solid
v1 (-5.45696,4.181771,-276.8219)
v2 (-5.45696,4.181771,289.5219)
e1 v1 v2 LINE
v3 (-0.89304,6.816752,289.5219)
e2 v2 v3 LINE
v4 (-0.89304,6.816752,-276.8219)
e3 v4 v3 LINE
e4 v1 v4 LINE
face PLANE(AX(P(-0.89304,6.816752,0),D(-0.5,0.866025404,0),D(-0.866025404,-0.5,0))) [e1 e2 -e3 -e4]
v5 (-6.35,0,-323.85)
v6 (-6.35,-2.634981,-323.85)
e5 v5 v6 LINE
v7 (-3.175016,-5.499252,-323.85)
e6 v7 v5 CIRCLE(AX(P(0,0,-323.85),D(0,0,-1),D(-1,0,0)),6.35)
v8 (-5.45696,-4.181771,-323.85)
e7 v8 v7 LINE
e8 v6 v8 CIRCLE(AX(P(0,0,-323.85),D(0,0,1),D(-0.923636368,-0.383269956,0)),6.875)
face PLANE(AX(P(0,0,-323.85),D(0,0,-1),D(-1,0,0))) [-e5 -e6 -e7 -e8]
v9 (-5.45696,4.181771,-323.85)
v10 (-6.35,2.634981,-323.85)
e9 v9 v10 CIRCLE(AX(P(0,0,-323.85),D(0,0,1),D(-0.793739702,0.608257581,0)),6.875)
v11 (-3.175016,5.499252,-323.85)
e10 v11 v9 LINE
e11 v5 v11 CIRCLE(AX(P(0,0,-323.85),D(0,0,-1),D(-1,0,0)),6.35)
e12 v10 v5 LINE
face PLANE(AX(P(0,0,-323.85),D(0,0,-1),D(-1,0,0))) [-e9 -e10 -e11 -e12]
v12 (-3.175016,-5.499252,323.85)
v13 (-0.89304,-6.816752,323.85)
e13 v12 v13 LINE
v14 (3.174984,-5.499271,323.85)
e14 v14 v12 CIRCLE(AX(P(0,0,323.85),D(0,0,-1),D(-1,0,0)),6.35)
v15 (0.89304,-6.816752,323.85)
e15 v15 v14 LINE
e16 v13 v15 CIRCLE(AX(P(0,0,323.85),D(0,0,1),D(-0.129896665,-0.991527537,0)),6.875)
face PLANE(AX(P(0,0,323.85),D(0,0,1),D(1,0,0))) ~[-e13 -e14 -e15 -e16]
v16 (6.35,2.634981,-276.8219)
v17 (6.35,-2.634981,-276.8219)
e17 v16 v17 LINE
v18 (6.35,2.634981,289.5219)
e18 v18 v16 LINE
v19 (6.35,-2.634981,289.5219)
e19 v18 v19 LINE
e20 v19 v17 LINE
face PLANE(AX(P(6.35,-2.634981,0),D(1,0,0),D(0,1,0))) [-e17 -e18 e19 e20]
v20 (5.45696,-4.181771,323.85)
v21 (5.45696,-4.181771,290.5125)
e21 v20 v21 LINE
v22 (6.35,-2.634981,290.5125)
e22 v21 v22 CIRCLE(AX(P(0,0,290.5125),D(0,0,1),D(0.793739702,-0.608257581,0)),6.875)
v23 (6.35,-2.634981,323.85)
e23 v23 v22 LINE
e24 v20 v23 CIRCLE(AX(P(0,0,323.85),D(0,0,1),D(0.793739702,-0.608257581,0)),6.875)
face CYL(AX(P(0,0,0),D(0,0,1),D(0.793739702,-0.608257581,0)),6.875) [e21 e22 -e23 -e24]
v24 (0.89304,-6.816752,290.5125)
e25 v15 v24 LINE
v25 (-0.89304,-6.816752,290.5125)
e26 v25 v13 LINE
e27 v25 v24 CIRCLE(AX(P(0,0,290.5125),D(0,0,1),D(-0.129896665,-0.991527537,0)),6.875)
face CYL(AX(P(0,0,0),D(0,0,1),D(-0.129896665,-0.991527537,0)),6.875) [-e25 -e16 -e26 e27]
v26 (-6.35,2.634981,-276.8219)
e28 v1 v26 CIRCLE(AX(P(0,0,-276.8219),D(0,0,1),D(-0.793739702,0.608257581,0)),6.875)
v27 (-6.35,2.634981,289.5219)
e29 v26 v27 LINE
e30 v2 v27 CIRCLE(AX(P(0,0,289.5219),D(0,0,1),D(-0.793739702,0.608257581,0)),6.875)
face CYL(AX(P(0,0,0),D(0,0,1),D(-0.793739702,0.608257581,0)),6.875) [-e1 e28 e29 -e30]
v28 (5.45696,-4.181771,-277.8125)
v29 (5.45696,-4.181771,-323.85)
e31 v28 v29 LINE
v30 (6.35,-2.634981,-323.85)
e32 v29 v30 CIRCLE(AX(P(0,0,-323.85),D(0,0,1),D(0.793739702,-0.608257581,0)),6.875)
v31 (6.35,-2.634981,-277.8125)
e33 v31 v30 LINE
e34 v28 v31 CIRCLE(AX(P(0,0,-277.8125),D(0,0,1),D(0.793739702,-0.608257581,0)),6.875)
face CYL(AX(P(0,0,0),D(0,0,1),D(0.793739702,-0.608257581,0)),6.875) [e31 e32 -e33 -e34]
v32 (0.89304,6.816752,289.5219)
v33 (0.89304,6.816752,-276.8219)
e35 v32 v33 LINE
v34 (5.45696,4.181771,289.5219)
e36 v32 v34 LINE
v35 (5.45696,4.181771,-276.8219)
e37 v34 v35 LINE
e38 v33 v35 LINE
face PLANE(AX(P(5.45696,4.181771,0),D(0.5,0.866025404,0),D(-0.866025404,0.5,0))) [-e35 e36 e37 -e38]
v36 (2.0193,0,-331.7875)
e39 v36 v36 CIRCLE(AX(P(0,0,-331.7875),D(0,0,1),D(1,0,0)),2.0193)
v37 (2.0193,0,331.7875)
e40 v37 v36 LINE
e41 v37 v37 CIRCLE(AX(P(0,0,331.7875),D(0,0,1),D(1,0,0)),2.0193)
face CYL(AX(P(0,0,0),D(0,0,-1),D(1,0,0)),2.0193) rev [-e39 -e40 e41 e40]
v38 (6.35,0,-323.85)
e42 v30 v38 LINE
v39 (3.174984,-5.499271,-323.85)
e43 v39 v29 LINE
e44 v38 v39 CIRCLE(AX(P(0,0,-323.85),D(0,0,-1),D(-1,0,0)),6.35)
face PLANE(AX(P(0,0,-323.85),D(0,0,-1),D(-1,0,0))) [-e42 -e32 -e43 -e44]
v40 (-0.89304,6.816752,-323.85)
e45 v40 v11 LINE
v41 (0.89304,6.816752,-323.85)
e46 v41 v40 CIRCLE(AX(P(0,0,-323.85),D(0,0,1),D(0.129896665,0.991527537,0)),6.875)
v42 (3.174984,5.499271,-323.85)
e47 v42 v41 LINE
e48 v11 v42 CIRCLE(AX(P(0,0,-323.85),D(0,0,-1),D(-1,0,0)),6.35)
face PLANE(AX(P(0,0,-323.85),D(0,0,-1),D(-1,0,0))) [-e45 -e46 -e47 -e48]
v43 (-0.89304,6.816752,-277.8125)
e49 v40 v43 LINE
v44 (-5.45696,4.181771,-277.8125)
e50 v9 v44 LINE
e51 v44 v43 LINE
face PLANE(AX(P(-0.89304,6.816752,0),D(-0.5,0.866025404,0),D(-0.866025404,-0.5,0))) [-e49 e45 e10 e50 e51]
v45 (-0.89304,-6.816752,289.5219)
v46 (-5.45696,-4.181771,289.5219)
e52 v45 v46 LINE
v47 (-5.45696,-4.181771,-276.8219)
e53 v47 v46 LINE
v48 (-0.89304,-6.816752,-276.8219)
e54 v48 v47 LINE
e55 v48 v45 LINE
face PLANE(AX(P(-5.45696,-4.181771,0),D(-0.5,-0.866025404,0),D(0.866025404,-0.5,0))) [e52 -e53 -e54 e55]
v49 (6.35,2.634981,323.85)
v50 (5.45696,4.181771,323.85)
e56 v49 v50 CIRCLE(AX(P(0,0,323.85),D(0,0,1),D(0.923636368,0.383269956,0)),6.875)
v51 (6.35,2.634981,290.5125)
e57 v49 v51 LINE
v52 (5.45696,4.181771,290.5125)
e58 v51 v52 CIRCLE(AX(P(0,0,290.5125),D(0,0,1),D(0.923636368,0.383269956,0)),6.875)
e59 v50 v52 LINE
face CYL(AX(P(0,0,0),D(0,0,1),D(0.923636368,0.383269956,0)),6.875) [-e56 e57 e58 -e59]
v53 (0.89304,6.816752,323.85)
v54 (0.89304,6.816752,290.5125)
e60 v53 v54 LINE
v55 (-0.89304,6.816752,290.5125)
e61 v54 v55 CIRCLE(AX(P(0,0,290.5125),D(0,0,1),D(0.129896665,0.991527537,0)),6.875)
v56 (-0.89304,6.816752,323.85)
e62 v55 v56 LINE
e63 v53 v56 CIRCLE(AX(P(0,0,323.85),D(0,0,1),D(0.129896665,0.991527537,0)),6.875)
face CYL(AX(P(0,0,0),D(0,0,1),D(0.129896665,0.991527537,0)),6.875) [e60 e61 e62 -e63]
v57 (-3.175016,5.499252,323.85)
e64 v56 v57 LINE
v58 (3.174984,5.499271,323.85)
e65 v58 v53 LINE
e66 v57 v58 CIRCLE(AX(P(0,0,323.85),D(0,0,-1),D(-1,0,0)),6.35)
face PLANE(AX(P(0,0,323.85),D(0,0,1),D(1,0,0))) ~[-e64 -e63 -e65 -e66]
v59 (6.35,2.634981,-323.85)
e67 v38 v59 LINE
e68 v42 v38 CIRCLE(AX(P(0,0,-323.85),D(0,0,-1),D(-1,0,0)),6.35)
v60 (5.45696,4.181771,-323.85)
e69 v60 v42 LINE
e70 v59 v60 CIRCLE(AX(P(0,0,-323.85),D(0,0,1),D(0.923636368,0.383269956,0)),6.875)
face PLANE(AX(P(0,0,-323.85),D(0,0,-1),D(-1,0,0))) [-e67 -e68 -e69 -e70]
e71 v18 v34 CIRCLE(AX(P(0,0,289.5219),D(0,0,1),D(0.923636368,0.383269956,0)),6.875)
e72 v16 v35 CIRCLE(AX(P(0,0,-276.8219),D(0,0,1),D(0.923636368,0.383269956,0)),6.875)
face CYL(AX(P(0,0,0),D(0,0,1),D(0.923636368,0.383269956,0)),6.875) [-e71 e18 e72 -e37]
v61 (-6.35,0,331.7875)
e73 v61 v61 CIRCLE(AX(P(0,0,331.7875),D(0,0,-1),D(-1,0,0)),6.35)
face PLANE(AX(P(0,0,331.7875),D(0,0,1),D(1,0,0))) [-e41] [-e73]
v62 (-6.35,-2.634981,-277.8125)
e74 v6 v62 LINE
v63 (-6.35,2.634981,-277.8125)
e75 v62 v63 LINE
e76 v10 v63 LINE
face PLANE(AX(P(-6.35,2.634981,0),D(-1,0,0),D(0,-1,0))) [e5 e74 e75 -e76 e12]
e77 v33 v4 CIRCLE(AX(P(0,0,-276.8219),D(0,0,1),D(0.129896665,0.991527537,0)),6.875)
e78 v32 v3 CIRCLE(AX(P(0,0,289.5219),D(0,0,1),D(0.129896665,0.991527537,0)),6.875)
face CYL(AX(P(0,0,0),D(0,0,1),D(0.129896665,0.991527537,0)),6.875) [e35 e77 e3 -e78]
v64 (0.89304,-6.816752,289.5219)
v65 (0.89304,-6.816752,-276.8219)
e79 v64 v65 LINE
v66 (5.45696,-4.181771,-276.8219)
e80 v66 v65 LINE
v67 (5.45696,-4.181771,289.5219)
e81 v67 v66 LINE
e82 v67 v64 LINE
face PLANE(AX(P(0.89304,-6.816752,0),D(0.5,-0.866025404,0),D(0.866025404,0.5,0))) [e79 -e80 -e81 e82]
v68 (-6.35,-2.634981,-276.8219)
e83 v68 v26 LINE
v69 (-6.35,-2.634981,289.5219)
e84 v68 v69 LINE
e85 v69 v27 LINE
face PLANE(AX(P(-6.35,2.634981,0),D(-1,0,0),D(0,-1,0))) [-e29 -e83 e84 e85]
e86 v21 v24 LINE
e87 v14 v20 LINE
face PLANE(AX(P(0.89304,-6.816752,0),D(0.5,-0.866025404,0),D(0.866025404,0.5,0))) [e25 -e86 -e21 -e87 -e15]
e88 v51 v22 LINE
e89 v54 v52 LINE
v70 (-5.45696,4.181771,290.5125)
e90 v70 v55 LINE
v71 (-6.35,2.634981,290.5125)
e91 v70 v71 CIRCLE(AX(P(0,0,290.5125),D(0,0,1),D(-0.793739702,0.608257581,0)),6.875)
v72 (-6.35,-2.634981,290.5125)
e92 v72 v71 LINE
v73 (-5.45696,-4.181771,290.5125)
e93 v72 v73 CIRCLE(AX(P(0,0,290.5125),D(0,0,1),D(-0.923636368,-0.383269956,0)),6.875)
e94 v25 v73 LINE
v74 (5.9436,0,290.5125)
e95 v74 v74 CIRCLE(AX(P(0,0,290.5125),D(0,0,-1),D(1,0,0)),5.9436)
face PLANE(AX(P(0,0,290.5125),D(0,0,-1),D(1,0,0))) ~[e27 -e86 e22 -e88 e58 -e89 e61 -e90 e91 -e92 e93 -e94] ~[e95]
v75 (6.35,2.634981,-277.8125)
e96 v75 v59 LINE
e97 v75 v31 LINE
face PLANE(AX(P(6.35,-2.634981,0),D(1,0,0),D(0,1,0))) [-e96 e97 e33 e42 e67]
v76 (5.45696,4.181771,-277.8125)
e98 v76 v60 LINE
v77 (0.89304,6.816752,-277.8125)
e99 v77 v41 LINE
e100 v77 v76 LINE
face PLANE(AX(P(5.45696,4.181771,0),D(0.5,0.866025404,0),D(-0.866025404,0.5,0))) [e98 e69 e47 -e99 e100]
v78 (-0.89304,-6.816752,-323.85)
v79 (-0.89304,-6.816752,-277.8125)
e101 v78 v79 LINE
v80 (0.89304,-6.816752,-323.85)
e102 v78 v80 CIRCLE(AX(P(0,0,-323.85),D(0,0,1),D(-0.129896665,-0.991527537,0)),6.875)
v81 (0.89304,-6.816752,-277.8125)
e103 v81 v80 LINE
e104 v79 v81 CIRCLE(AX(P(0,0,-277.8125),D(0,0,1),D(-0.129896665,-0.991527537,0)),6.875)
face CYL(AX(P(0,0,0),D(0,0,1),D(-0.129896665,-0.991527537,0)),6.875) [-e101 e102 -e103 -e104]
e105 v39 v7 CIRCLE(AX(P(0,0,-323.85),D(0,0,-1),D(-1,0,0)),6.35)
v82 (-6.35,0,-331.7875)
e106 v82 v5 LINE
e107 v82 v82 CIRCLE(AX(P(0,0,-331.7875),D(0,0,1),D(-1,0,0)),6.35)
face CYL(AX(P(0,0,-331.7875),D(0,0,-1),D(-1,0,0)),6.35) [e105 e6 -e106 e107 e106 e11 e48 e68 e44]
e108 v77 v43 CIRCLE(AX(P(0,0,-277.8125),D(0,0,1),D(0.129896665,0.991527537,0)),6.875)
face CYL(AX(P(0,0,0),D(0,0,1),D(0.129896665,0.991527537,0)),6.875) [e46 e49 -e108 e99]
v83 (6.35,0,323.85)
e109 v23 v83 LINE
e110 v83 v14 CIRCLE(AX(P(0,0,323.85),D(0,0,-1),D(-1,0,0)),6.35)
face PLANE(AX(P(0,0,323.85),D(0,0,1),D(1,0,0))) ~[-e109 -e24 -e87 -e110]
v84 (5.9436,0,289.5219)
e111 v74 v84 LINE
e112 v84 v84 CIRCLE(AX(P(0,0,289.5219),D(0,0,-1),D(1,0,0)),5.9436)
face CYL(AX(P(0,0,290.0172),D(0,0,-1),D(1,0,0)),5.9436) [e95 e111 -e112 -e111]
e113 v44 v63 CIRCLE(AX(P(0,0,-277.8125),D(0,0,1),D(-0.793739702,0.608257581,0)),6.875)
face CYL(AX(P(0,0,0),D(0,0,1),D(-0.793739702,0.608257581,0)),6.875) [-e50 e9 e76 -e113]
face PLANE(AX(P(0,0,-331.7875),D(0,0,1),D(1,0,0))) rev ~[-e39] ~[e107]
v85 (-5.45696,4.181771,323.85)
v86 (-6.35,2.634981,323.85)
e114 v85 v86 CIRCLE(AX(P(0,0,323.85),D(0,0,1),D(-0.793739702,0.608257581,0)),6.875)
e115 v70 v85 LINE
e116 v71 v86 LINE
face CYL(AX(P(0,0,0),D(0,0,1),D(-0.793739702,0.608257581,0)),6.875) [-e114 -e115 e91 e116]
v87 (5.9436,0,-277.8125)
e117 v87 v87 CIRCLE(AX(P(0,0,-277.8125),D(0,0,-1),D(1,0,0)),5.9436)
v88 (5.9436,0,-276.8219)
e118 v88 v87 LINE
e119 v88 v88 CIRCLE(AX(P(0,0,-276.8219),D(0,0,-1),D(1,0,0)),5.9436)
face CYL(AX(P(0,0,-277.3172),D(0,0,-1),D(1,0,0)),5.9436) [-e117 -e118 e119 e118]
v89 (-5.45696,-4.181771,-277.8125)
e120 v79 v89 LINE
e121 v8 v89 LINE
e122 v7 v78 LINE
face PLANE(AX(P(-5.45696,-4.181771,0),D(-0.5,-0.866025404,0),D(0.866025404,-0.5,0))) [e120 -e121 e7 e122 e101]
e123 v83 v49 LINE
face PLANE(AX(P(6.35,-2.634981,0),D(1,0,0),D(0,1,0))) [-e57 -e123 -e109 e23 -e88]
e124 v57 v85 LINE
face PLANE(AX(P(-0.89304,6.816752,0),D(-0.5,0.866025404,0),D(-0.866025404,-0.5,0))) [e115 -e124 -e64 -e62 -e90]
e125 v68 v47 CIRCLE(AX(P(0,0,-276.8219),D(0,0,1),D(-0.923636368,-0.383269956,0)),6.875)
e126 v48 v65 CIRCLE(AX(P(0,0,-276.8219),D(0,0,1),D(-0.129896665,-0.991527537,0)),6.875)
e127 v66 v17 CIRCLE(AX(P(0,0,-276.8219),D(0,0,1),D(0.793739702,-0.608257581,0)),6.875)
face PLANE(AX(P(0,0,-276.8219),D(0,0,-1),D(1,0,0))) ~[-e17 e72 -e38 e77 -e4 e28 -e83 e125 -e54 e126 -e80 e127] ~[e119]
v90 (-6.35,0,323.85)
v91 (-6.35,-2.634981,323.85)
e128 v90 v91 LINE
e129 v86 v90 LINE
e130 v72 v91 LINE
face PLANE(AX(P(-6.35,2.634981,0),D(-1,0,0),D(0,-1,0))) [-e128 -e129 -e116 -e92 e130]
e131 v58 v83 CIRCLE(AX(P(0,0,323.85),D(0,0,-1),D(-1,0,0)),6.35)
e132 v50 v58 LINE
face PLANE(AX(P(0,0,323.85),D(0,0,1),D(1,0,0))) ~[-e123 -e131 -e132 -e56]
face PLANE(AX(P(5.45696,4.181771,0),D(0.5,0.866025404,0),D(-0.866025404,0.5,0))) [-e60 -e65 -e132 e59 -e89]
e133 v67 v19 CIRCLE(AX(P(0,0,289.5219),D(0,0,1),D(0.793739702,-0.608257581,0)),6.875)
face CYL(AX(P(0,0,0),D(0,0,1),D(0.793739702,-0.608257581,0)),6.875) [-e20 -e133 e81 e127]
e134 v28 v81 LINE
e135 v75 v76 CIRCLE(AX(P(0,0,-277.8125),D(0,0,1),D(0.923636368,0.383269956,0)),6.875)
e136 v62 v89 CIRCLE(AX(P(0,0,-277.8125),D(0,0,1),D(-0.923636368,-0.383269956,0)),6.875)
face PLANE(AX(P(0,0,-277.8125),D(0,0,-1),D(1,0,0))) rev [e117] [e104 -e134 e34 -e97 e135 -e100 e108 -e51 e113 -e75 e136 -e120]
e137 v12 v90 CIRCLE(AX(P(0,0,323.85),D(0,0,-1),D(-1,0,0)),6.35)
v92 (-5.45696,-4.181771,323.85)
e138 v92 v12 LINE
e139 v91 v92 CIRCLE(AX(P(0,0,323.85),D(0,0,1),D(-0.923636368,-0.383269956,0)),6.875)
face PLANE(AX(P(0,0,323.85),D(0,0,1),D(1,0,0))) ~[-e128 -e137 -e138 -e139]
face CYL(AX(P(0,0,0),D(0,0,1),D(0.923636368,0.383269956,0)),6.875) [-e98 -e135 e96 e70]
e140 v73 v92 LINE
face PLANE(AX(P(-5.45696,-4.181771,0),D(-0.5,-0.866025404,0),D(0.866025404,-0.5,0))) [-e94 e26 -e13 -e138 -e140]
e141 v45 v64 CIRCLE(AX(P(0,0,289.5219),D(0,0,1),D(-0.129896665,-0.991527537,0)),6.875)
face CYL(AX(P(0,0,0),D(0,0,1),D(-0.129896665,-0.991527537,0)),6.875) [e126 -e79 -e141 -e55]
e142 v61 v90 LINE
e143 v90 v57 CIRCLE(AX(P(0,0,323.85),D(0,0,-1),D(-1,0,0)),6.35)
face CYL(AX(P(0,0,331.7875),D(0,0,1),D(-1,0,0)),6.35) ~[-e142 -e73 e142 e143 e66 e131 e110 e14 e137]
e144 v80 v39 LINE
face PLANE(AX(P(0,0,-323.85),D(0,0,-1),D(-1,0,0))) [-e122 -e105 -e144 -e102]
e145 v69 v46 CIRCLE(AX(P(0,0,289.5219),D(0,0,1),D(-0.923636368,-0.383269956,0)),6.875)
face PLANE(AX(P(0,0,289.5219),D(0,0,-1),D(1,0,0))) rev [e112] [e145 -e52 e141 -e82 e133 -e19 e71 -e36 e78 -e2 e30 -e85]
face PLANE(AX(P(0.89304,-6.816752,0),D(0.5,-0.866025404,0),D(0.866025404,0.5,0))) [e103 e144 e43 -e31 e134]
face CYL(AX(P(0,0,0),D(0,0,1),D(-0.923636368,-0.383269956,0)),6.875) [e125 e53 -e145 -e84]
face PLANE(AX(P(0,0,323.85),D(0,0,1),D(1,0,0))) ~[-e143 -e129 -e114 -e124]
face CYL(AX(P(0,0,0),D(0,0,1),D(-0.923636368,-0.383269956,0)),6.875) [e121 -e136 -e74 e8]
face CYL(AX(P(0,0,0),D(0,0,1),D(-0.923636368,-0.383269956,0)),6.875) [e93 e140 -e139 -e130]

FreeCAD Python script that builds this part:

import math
import FreeCAD as App
import Part
import Sketcher

V = App.Vector
Q = App.Units.Quantity

doc = App.newDocument("Part")
body = doc.addObject("PartDesign::Body", "Body")

sketch1 = body.newObject("Sketcher::SketchObject", "Sketch")
sketch1.AttachmentSupport = (doc.getObject("XY_Plane"), [""])
sketch1.MapMode = "FlatFace"
sketch1.addGeometry([
    Part.ArcOfCircle(Part.Circle(V(0, 0, 0), V(0, 0, 1), 6.9), math.radians(82.54), math.radians(97.46)),
    Part.LineSegment(V(-0.9, 6.8, 0), V(-5.5, 4.2, 0)),
    Part.ArcOfCircle(Part.Circle(V(0, 0, 0), V(0, 0, 1), 6.9), math.radians(142.54), math.radians(157.46)),
    Part.LineSegment(V(-6.3, 2.6, 0), V(-6.3, -2.6, 0)),
    Part.ArcOfCircle(Part.Circle(V(0, 0, 0), V(0, 0, 1), 6.9), math.radians(-157.46), math.radians(-142.54)),
    Part.LineSegment(V(-5.5, -4.2, 0), V(-0.9, -6.8, 0)),
    Part.ArcOfCircle(Part.Circle(V(0, 0, 0), V(0, 0, 1), 6.9), math.radians(-97.46), math.radians(-82.54)),
    Part.LineSegment(V(0.9, -6.8, 0), V(5.5, -4.2, 0)),
    Part.ArcOfCircle(Part.Circle(V(0, 0, 0), V(0, 0, 1), 6.9), math.radians(-37.46), math.radians(-22.54)),
    Part.LineSegment(V(6.3, -2.6, 0), V(6.3, 2.6, 0)),
    Part.ArcOfCircle(Part.Circle(V(0, 0, 0), V(0, 0, 1), 6.9), math.radians(22.54), math.radians(37.46)),
    Part.LineSegment(V(5.5, 4.2, 0), V(0.9, 6.8, 0)),
    Part.Circle(V(0, 0, 0), V(0, 0, 1), 2),
], False)
sketch1.addConstraint([
    Sketcher.Constraint("Coincident", 0, 2, 1, 1),
    Sketcher.Constraint("Coincident", 1, 2, 2, 1),
    Sketcher.Constraint("Coincident", 2, 2, 3, 1),
    Sketcher.Constraint("Coincident", 3, 2, 4, 1),
    Sketcher.Constraint("Coincident", 4, 2, 5, 1),
    Sketcher.Constraint("Coincident", 5, 2, 6, 1),
    Sketcher.Constraint("Coincident", 6, 2, 7, 1),
    Sketcher.Constraint("Coincident", 7, 2, 8, 1),
    Sketcher.Constraint("Coincident", 8, 2, 9, 1),
    Sketcher.Constraint("Coincident", 9, 2, 10, 1),
    Sketcher.Constraint("Coincident", 10, 2, 11, 1),
    Sketcher.Constraint("Coincident", 11, 2, 0, 1),
    Sketcher.Constraint("Vertical", 3),
    Sketcher.Constraint("Vertical", 9),
    Sketcher.Constraint("Coincident", 0, 3, -1, 1),
    Sketcher.Constraint("Coincident", 2, 3, -1, 1),
    Sketcher.Constraint("Coincident", 4, 3, -1, 1),
    Sketcher.Constraint("Coincident", 6, 3, -1, 1),
    Sketcher.Constraint("Coincident", 8, 3, -1, 1),
    Sketcher.Constraint("Coincident", 10, 3, -1, 1),
    Sketcher.Constraint("Coincident", 12, 3, -1, 1),
    Sketcher.Constraint("Equal", 0, 2),
    Sketcher.Constraint("Equal", 2, 4),
    Sketcher.Constraint("Equal", 4, 6),
    Sketcher.Constraint("Equal", 6, 8),
    Sketcher.Constraint("Equal", 8, 10),
    Sketcher.Constraint("Parallel", 1, 7),
    Sketcher.Constraint("Parallel", 5, 11),
    Sketcher.Constraint("Horizontal", 5, 2, 6, 2),
    Sketcher.Constraint("Horizontal", 4, 2, 7, 2),
    Sketcher.Constraint("Horizontal", 3, 2, 8, 2),
    Sketcher.Constraint("Horizontal", 1, 2, 10, 2),
    Sketcher.Constraint("Vertical", 1, 2, 4, 2),
    Sketcher.Constraint("Diameter", 12, Q("0.159 in")),
    Sketcher.Constraint("Angle", 1, Q("-150 deg")),
    Sketcher.Constraint("DistanceX", 2, 2, -1, 1, Q("0.25 in")),
    Sketcher.Constraint("Radius", 0, Q("6.875 mm")),
    Sketcher.Constraint("DistanceX", 0, 2, 10, 2, Q("0.25 in")),
])
pad1 = body.newObject("PartDesign::Pad", "Pad")
pad1.Profile = sketch1
pad1.Length = Q("26.125 in")
pad1.Midplane = True

sketch2 = body.newObject("Sketcher::SketchObject", "Sketch001")
sketch2.AttachmentSupport = (doc.getObject("XY_Plane"), [""])
sketch2.MapMode = "FlatFace"
sketch2.AttachmentOffset = App.Placement(V(0, 0, -13.0625 * 25.4), App.Rotation())
sketch2.addGeometry([
    Part.Circle(V(0, 0, 0), V(0, 0, 1), 9),
    Part.Circle(V(0, 0, 0), V(0, 0, 1), 6),
], False)
sketch2.addConstraint([
    Sketcher.Constraint("Coincident", 0, 3, -1, 1),
    Sketcher.Constraint("Coincident", 1, 3, -1, 1),
    Sketcher.Constraint("Diameter", 0, Q("0.7 in")),
    Sketcher.Constraint("Diameter", 1, Q("0.5 in")),
])
pocket1 = body.newObject("PartDesign::Pocket", "Pocket")
pocket1.Profile = sketch2
pocket1.Length = Q("0.3125 in")
pocket1.Reversed = True

sketch3 = body.newObject("Sketcher::SketchObject", "Sketch002")
sketch3.AttachmentSupport = (doc.getObject("XZ_Plane"), [""])
sketch3.MapMode = "FlatFace"
sketch3.addGeometry([
    Part.LineSegment(V(5.9, 289.5, 0), V(5.9, 290.5, 0)),
    Part.LineSegment(V(5.9, 290.5, 0), V(8.2, 290.5, 0)),
    Part.LineSegment(V(8.2, 290.5, 0), V(8.2, 289.5, 0)),
    Part.LineSegment(V(8.2, 289.5, 0), V(5.9, 289.5, 0)),
    Part.LineSegment(V(5.9, -277.8, 0), V(5.9, -276.8, 0)),
    Part.LineSegment(V(5.9, -276.8, 0), V(8.6, -276.8, 0)),
    Part.LineSegment(V(8.6, -276.8, 0), V(8.6, -277.8, 0)),
    Part.LineSegment(V(8.6, -277.8, 0), V(5.9, -277.8, 0)),
], False)
sketch3.addConstraint([
    Sketcher.Constraint("Coincident", 0, 2, 1, 1),
    Sketcher.Constraint("Coincident", 1, 2, 2, 1),
    Sketcher.Constraint("Coincident", 2, 2, 3, 1),
    Sketcher.Constraint("Coincident", 3, 2, 0, 1),
    Sketcher.Constraint("Coincident", 4, 2, 5, 1),
    Sketcher.Constraint("Coincident", 5, 2, 6, 1),
    Sketcher.Constraint("Coincident", 6, 2, 7, 1),
    Sketcher.Constraint("Coincident", 7, 2, 4, 1),
    Sketcher.Constraint("Vertical", 0),
    Sketcher.Constraint("Horizontal", 1),
    Sketcher.Constraint("Vertical", 2),
    Sketcher.Constraint("Horizontal", 3),
    Sketcher.Constraint("Vertical", 4),
    Sketcher.Constraint("Horizontal", 5),
    Sketcher.Constraint("Vertical", 6),
    Sketcher.Constraint("Horizontal", 7),
    Sketcher.Constraint("Vertical", 3, 2, 4, 2),
    Sketcher.Constraint("Equal", 2, 4),
    Sketcher.Constraint("DistanceY", 0, 1, 0, 2, Q("0.039 in")),
    Sketcher.Constraint("DistanceX", -1, 1, 0, 2, Q("0.234 in")),
    Sketcher.Constraint("DistanceY", -1, 1, 0, 2, Q("11.4375 in")),
    Sketcher.Constraint("DistanceY", 6, 2, -1, 1, Q("10.9375 in")),
    Sketcher.Constraint("DistanceX", 1, 1, 1, 2, Q("2.210987 mm")),
    Sketcher.Constraint("DistanceX", 5, 1, 5, 2, Q("2.673606 mm")),
])
groove = body.newObject("PartDesign::Groove", "Groove")
groove.Profile = sketch3
groove.ReferenceAxis = (sketch3, ["V_Axis"])
groove.Angle = 360
doc.recompute()

mirrored = body.newObject("PartDesign::Mirrored", "Mirrored")
mirrored.Originals = [pocket1]
mirrored.MirrorPlane = (doc.getObject("XY_Plane"), [""])
body.Tip = mirrored

sketch4 = body.newObject("Sketcher::SketchObject", "Sketch003")
sketch4.AttachmentSupport = (doc.getObject("XY_Plane"), [""])
sketch4.MapMode = "FlatFace"
sketch4.AttachmentOffset = App.Placement(V(0, 0, -13.0625 * 25.4), App.Rotation())
sketch4.addGeometry(Part.Circle(V(0, 0, 0), V(0, 0, 1), 2), False)
sketch4.addConstraint([
    Sketcher.Constraint("Coincident", 0, 3, -1, 1),
    Sketcher.Constraint("Diameter", 0, Q("0.159 in")),
])
doc.recompute()
hole = body.newObject("PartDesign::Hole", "Hole")
hole.Profile = sketch4
hole.ThreadType = "None"
hole.Diameter = Q("0.159 in")
hole.DepthType = "Dimension"
hole.Depth = Q("0.4736 in")
hole.DrillPoint = "Angled"
hole.DrillPointAngle = 118
hole.Reversed = True

sketch5 = body.newObject("Sketcher::SketchObject", "Sketch004")
sketch5.AttachmentSupport = (doc.getObject("XY_Plane"), [""])
sketch5.MapMode = "FlatFace"
sketch5.AttachmentOffset = App.Placement(V(0, 0, 13.0625 * 25.4), App.Rotation())
sketch5.addGeometry(Part.Circle(V(0, 0, 0), V(0, 0, 1), 2), False)
sketch5.addConstraint([
    Sketcher.Constraint("Coincident", 0, 3, -1, 1),
    Sketcher.Constraint("Diameter", 0, Q("0.159 in")),
])
doc.recompute()
hole2 = body.newObject("PartDesign::Hole", "Hole001")
hole2.Profile = sketch5
hole2.ThreadType = "None"
hole2.Diameter = Q("0.159 in")
hole2.DepthType = "Dimension"
hole2.Depth = Q("0.4736 in")
hole2.DrillPoint = "Angled"
hole2.DrillPointAngle = 118
hole2.Reversed = True

doc.recompute()
